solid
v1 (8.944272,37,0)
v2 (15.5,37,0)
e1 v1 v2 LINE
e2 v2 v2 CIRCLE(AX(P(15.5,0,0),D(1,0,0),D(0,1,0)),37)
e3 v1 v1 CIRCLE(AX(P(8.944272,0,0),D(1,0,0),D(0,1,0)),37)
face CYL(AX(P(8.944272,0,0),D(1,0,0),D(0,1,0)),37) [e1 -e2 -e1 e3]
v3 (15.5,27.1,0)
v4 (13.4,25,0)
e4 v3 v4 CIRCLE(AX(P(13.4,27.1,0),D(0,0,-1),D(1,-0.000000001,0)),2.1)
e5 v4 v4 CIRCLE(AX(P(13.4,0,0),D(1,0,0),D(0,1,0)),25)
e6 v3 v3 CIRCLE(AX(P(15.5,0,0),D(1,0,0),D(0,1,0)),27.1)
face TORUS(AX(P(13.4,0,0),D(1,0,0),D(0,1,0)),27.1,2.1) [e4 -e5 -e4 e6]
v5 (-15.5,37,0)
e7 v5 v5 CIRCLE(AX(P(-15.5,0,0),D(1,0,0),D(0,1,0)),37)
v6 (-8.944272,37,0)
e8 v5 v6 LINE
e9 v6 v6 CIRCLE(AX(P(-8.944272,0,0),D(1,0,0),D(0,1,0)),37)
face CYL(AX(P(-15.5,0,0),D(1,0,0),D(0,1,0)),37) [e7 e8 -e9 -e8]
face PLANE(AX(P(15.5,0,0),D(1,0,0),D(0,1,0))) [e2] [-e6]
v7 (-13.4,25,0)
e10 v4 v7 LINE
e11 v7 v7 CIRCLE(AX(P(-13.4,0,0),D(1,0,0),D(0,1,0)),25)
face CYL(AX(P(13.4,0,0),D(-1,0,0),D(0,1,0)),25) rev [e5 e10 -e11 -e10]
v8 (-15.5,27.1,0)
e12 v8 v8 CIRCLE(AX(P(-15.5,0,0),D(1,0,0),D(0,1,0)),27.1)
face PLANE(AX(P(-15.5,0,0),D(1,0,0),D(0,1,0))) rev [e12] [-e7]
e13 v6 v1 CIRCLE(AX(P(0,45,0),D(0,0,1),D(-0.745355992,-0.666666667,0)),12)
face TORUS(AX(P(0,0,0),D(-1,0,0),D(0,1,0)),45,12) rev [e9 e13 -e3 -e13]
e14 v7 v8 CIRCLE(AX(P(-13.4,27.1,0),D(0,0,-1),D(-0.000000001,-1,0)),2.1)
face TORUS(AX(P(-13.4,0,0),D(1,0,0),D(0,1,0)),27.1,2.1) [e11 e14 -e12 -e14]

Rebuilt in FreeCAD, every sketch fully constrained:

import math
import FreeCAD as App
import Part
import Sketcher
from FreeCAD import Vector

doc = App.newDocument("Part")
body = doc.addObject("PartDesign::Body", "Body")

# Sketch on XY plane
sketch1 = doc.addObject("Sketcher::SketchObject", "Sketch")
body.addObject(sketch1)
sketch1.AttachmentSupport = (doc.XY_Plane, [""])
sketch1.MapMode = "FlatFace"
sketch1.addGeometry([
    Part.LineSegment(Vector(-13.4, 25, 0), Vector(13.4, 25, 0)),  # 0
    Part.ArcOfCircle(Part.Circle(Vector(13.4, 27.1, 0), Vector(0, 0, 1), 2.1), math.radians(-90), math.radians(0)),  # 1
    Part.LineSegment(Vector(15.5, 27.1, 0), Vector(15.5, 37, 0)),  # 2
    Part.LineSegment(Vector(15.5, 37, 0), Vector(8.9, 37, 0)),  # 3
    Part.ArcOfCircle(Part.Circle(Vector(0, 45, 0), Vector(0, 0, 1), 12), math.radians(-138), math.radians(-42)),  # 4
    Part.LineSegment(Vector(-8.9, 37, 0), Vector(-15.5, 37, 0)),  # 5
    Part.LineSegment(Vector(-15.5, 37, 0), Vector(-15.5, 27.1, 0)),  # 6
    Part.ArcOfCircle(Part.Circle(Vector(-13.4, 27.1, 0), Vector(0, 0, 1), 2.1), math.radians(-180), math.radians(-90)),  # 7
], False)
sketch1.addConstraint([
    Sketcher.Constraint("Tangent", 0, 2, 1, 1),
    Sketcher.Constraint("Tangent", 1, 2, 2, 1),
    Sketcher.Constraint("Coincident", 2, 2, 3, 1),
    Sketcher.Constraint("Coincident", 3, 2, 4, 2),
    Sketcher.Constraint("Coincident", 4, 1, 5, 1),
    Sketcher.Constraint("Coincident", 5, 2, 6, 1),
    Sketcher.Constraint("Tangent", 6, 2, 7, 1),
    Sketcher.Constraint("Tangent", 7, 2, 0, 1),
    Sketcher.Constraint("Horizontal", 0),
    Sketcher.Constraint("Vertical", 2),
    Sketcher.Constraint("Horizontal", 3),
    Sketcher.Constraint("Horizontal", 5),
    Sketcher.Constraint("Vertical", 6),
    Sketcher.Constraint("Equal", 1, 7),
    Sketcher.Constraint("Symmetric", 3, 2, 4, 1, -2),
    Sketcher.Constraint("Equal", 3, 5),
    Sketcher.Constraint("Radius", 4, 12.0),
    Sketcher.Constraint("Radius", 1, 2.1),
    Sketcher.Constraint("DistanceX", 0, 1, 0, 2, 26.8),
    Sketcher.Constraint("DistanceY", 2, 1, 2, 2, 9.9),
    Sketcher.Constraint("DistanceY", -1, 1, 4, 3, 45.0),
    Sketcher.Constraint("DistanceY", -1, 1, 0, 2, 25.0),
])
revolution = doc.addObject("PartDesign::Revolution", "Revolution")
body.addObject(revolution)
revolution.Profile = sketch1
revolution.ReferenceAxis = (sketch1, ["H_Axis"])
revolution.Angle = 360

doc.recompute()
